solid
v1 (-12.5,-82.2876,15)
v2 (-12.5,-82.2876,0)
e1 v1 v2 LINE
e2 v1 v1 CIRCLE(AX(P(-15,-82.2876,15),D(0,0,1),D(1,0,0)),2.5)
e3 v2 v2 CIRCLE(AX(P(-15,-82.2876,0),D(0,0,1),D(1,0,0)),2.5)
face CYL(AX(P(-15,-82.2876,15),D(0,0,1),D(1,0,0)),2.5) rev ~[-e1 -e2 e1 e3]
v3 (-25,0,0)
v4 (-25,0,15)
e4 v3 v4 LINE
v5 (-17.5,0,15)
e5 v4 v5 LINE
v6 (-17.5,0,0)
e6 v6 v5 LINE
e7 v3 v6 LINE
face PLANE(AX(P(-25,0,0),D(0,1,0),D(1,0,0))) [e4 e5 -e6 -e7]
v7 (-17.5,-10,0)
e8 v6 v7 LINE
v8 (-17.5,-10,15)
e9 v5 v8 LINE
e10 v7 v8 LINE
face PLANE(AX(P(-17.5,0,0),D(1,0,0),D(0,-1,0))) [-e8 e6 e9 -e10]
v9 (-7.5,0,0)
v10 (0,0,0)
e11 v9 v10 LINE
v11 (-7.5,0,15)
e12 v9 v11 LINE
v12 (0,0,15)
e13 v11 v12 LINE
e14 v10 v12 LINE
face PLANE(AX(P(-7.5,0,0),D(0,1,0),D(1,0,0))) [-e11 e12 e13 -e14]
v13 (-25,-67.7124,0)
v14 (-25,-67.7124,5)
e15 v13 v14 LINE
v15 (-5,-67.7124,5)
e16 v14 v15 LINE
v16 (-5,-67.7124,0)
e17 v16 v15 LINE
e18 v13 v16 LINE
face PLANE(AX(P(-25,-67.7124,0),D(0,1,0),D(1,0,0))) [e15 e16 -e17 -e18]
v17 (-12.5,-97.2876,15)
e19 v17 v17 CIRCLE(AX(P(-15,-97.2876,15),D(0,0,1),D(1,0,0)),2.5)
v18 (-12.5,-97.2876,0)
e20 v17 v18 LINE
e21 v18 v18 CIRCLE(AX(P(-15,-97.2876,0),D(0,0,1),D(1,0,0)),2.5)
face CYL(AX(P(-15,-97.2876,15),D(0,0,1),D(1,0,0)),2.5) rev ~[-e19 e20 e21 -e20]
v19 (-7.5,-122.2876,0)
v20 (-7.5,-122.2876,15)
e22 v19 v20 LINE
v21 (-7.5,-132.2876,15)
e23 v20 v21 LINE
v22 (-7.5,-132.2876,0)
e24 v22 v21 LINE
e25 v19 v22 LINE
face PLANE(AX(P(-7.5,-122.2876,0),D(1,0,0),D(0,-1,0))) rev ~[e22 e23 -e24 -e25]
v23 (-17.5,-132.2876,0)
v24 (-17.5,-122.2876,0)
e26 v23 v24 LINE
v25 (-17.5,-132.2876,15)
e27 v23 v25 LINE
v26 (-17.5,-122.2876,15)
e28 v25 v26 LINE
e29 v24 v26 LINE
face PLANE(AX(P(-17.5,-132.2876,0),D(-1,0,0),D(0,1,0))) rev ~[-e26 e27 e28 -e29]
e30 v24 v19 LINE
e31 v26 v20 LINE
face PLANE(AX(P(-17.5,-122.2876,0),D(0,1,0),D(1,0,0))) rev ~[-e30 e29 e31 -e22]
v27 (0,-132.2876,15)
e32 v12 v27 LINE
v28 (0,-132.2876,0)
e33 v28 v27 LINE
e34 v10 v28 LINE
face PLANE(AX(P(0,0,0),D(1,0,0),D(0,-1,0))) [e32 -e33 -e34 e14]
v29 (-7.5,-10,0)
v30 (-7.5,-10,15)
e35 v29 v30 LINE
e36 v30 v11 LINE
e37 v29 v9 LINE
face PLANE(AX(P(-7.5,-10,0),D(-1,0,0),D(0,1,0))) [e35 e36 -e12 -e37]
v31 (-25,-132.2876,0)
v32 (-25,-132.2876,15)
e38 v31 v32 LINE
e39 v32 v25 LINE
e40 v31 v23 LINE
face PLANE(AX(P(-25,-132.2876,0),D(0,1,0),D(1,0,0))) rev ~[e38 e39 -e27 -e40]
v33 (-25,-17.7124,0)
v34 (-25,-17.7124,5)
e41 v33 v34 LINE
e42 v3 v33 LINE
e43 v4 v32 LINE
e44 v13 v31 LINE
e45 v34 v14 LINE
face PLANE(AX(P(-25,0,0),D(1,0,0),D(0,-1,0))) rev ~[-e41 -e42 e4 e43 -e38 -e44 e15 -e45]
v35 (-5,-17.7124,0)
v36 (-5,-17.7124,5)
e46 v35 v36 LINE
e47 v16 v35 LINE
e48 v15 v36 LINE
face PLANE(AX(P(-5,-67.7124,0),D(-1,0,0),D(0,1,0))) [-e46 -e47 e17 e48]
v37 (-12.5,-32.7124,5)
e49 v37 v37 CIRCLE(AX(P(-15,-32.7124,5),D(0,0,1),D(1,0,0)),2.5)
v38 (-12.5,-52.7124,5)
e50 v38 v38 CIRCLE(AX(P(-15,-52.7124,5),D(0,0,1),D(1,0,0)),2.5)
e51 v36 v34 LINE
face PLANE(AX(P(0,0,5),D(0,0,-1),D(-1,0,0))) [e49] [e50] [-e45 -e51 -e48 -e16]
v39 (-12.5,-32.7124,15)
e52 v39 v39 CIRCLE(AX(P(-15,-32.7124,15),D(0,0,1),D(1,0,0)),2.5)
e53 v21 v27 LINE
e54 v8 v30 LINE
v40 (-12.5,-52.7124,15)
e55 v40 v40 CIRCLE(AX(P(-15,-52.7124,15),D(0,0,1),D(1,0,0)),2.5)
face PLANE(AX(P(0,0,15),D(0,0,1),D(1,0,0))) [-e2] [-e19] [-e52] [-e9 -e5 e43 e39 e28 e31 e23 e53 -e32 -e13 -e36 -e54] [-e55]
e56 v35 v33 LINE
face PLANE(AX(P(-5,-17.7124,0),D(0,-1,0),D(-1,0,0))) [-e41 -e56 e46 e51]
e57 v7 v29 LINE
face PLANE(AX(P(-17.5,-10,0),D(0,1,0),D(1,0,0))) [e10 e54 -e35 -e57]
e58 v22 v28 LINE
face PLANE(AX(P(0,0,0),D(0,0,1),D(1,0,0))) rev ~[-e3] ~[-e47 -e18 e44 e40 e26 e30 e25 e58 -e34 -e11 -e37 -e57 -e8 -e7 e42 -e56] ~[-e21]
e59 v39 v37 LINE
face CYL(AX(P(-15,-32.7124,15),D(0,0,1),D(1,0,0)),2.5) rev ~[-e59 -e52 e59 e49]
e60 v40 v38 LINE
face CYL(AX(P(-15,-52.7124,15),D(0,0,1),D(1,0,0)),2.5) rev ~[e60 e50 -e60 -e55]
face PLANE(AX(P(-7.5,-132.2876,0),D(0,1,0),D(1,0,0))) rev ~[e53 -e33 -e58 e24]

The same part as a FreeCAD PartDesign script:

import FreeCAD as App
import Part
import Sketcher
Q = App.Units.Quantity

doc = App.newDocument("Part")
params = doc.addObject("Spreadsheet::Sheet", "Params")
for row, (alias, value) in enumerate([
    ("sketch1_width", "10 mm"),
    ("sketch1_width2", "7.5 mm"),
    ("pad1_length", "15 mm"),
    ("sketch2_diameter", "5 mm"),
    ("sketch3_diameter", "5 mm"),
    ("sketch4_width", "20 mm"),
    ("sketch4_height", "50 mm"),
    ("pocket3_length", "5 mm"),
], start=1):
    params.set(f"A{row}", alias)
    params.set(f"B{row}", "=" + value)
    params.setAlias(f"B{row}", alias)

body = doc.addObject("PartDesign::Body", "Body")

# Sketch on XY plane
sketch1 = body.newObject("Sketcher::SketchObject", "Sketch")
sketch1.AttachmentSupport = (doc.getObject("XY_Plane"), [""])
sketch1.MapMode = "FlatFace"
sketch1.addGeometry(Part.LineSegment(App.Vector(-17.5, 0, 0), App.Vector(-25, 0, 0)), False)
sketch1.addGeometry(Part.LineSegment(App.Vector(-25, 0, 0), App.Vector(-25, -132.2876, 0)), False)
sketch1.addGeometry(Part.LineSegment(App.Vector(-25, -132.2876, 0), App.Vector(-17.5, -132.2876, 0)), False)
sketch1.addGeometry(Part.LineSegment(App.Vector(-17.5, -132.2876, 0), App.Vector(-17.5, -122.2876, 0)), False)
sketch1.addGeometry(Part.LineSegment(App.Vector(-17.5, -122.2876, 0), App.Vector(-7.5, -122.2876, 0)), False)
sketch1.addGeometry(Part.LineSegment(App.Vector(-7.5, -122.2876, 0), App.Vector(-7.5, -132.2876, 0)), False)
sketch1.addGeometry(Part.LineSegment(App.Vector(-7.5, -132.2876, 0), App.Vector(0, -132.2876, 0)), False)
sketch1.addGeometry(Part.LineSegment(App.Vector(0, -132.2876, 0), App.Vector(0, 0, 0)), False)
sketch1.addGeometry(Part.LineSegment(App.Vector(0, 0, 0), App.Vector(-7.5, 0, 0)), False)
sketch1.addGeometry(Part.LineSegment(App.Vector(-7.5, 0, 0), App.Vector(-7.5, -10, 0)), False)
sketch1.addGeometry(Part.LineSegment(App.Vector(-7.5, -10, 0), App.Vector(-17.5, -10, 0)), False)
sketch1.addGeometry(Part.LineSegment(App.Vector(-17.5, -10, 0), App.Vector(-17.5, 0, 0)), False)
sketch1.addConstraint(Sketcher.Constraint("Coincident", 0, 2, 1, 1))
sketch1.addConstraint(Sketcher.Constraint("Coincident", 1, 2, 2, 1))
sketch1.addConstraint(Sketcher.Constraint("Coincident", 2, 2, 3, 1))
sketch1.addConstraint(Sketcher.Constraint("Coincident", 3, 2, 4, 1))
sketch1.addConstraint(Sketcher.Constraint("Coincident", 4, 2, 5, 1))
sketch1.addConstraint(Sketcher.Constraint("Coincident", 5, 2, 6, 1))
sketch1.addConstraint(Sketcher.Constraint("Coincident", 6, 2, 7, 1))
sketch1.addConstraint(Sketcher.Constraint("Coincident", 7, 2, 8, 1))
sketch1.addConstraint(Sketcher.Constraint("Coincident", 8, 2, 9, 1))
sketch1.addConstraint(Sketcher.Constraint("Coincident", 9, 2, 10, 1))
sketch1.addConstraint(Sketcher.Constraint("Coincident", 10, 2, 11, 1))
sketch1.addConstraint(Sketcher.Constraint("Coincident", 11, 2, 0, 1))
sketch1.addConstraint(Sketcher.Constraint("Horizontal", 0))
sketch1.addConstraint(Sketcher.Constraint("Vertical", 1))
sketch1.addConstraint(Sketcher.Constraint("Horizontal", 2))
sketch1.addConstraint(Sketcher.Constraint("Vertical", 3))
sketch1.addConstraint(Sketcher.Constraint("Horizontal", 4))
sketch1.addConstraint(Sketcher.Constraint("Vertical", 5))
sketch1.addConstraint(Sketcher.Constraint("Horizontal", 6))
sketch1.addConstraint(Sketcher.Constraint("Vertical", 7))
sketch1.addConstraint(Sketcher.Constraint("Horizontal", 8))
sketch1.addConstraint(Sketcher.Constraint("Vertical", 9))
sketch1.addConstraint(Sketcher.Constraint("Horizontal", 10))
sketch1.addConstraint(Sketcher.Constraint("Vertical", 11))
sketch1.addConstraint(Sketcher.Constraint("Coincident", 7, 2, -1, 1))
sketch1.addConstraint(Sketcher.Constraint("PointOnObject", 0, 2, -1))
sketch1.addConstraint(Sketcher.Constraint("Horizontal", 2, 2, 5, 2))
sketch1.addConstraint(Sketcher.Constraint("Vertical", 5, 2, 8, 2))
sketch1.addConstraint(Sketcher.Constraint("Vertical", 3, 2, 10, 2))
sketch1.addConstraint(Sketcher.Constraint("Equal", 2, 6))
sketch1.addConstraint(Sketcher.Constraint("Equal", 10, 3))
sketch1.addConstraint(Sketcher.Constraint("Equal", 5, 9))
sketch1.addConstraint(Sketcher.Constraint("DistanceX", 4, 1, 4, 2, Q("10 mm")))
sketch1.addConstraint(Sketcher.Constraint("DistanceX", 0, 2, 0, 1, Q("7.5 mm")))
sketch1.addConstraint(Sketcher.Constraint("DistanceY", 1, 2, 1, 1, Q("132.2876 mm")))
sketch1.setExpression("Constraints[32]", "Params.sketch1_width")
sketch1.setExpression("Constraints[33]", "Params.sketch1_width2")
pad1 = body.newObject("PartDesign::Pad", "Pad")
pad1.Profile = sketch1
pad1.setExpression("Length", "Params.pad1_length")

# Sketch on XY plane
sketch2 = body.newObject("Sketcher::SketchObject", "Sketch001")
sketch2.AttachmentSupport = (doc.getObject("XY_Plane"), [""])
sketch2.MapMode = "FlatFace"
sketch2.AttachmentOffset = App.Placement(App.Vector(0, 0, 15), App.Rotation())
sketch2.addGeometry(Part.Circle(App.Vector(-15, -32.7124, 0), App.Vector(0, 0, 1), 2.5), False)
sketch2.addGeometry(Part.Circle(App.Vector(-15, -52.7124, 0), App.Vector(0, 0, 1), 2.5), False)
sketch2.addConstraint(Sketcher.Constraint("Equal", 0, 1))
sketch2.addConstraint(Sketcher.Constraint("Vertical", 0, 3, 1, 3))
sketch2.addConstraint(Sketcher.Constraint("Diameter", 0, Q("5 mm")))
sketch2.addConstraint(Sketcher.Constraint("DistanceX", 0, 3, -1, 1, Q("15 mm")))
sketch2.addConstraint(Sketcher.Constraint("DistanceY", 1, 3, 0, 3, Q("20 mm")))
sketch2.addConstraint(Sketcher.Constraint("DistanceY", 0, 3, -1, 1, Q("32.7124 mm")))
sketch2.setExpression("Constraints[2]", "Params.sketch2_diameter")
pocket1 = body.newObject("PartDesign::Pocket", "Pocket")
pocket1.Profile = sketch2
pocket1.Type = "ThroughAll"

# Sketch on XY plane
sketch3 = body.newObject("Sketcher::SketchObject", "Sketch002")
sketch3.AttachmentSupport = (doc.getObject("XY_Plane"), [""])
sketch3.MapMode = "FlatFace"
sketch3.AttachmentOffset = App.Placement(App.Vector(0, 0, 15), App.Rotation())
sketch3.addGeometry(Part.Circle(App.Vector(-15, -82.2876, 0), App.Vector(0, 0, 1), 2.5), False)
sketch3.addGeometry(Part.Circle(App.Vector(-15, -97.2876, 0), App.Vector(0, 0, 1), 2.5), False)
sketch3.addConstraint(Sketcher.Constraint("Equal", 0, 1))
sketch3.addConstraint(Sketcher.Constraint("Vertical", 0, 3, 1, 3))
sketch3.addConstraint(Sketcher.Constraint("Diameter", 0, Q("5 mm")))
sketch3.addConstraint(Sketcher.Constraint("DistanceX", 0, 3, -1, 1, Q("15 mm")))
sketch3.addConstraint(Sketcher.Constraint("DistanceY", 1, 3, 0, 3, Q("15 mm")))
sketch3.addConstraint(Sketcher.Constraint("DistanceY", 0, 3, -1, 1, Q("82.2876 mm")))
sketch3.setExpression("Constraints[2]", "Params.sketch3_diameter")
pocket2 = body.newObject("PartDesign::Pocket", "Pocket001")
pocket2.Profile = sketch3
pocket2.Type = "ThroughAll"

# Sketch on XY plane
sketch4 = body.newObject("Sketcher::SketchObject", "Sketch003")
sketch4.AttachmentSupport = (doc.getObject("XY_Plane"), [""])
sketch4.MapMode = "FlatFace"
sketch4.addGeometry(Part.LineSegment(App.Vector(-25, -17.7124, 0), App.Vector(-5, -17.7124, 0)), False)
sketch4.addGeometry(Part.LineSegment(App.Vector(-5, -17.7124, 0), App.Vector(-5, -67.7124, 0)), False)
sketch4.addGeometry(Part.LineSegment(App.Vector(-5, -67.7124, 0), App.Vector(-25, -67.7124, 0)), False)
sketch4.addGeometry(Part.LineSegment(App.Vector(-25, -67.7124, 0), App.Vector(-25, -17.7124, 0)), False)
sketch4.addConstraint(Sketcher.Constraint("Coincident", 0, 2, 1, 1))
sketch4.addConstraint(Sketcher.Constraint("Coincident", 1, 2, 2, 1))
sketch4.addConstraint(Sketcher.Constraint("Coincident", 2, 2, 3, 1))
sketch4.addConstraint(Sketcher.Constraint("Coincident", 3, 2, 0, 1))
sketch4.addConstraint(Sketcher.Constraint("Horizontal", 0))
sketch4.addConstraint(Sketcher.Constraint("Vertical", 1))
sketch4.addConstraint(Sketcher.Constraint("Horizontal", 2))
sketch4.addConstraint(Sketcher.Constraint("Vertical", 3))
sketch4.addConstraint(Sketcher.Constraint("DistanceX", 0, 1, 0, 2, Q("20 mm")))
sketch4.addConstraint(Sketcher.Constraint("DistanceY", 1, 2, 1, 1, Q("50 mm")))
sketch4.addConstraint(Sketcher.Constraint("DistanceX", 0, 2, -1, 1, Q("5 mm")))
sketch4.addConstraint(Sketcher.Constraint("DistanceY", 0, 2, -1, 1, Q("17.7124 mm")))
sketch4.setExpression("Constraints[8]", "Params.sketch4_width")
sketch4.setExpression("Constraints[9]", "Params.sketch4_height")
pocket3 = body.newObject("PartDesign::Pocket", "Pocket002")
pocket3.Profile = sketch4
pocket3.setExpression("Length", "Params.pocket3_length")
pocket3.Reversed = True

doc.recompute()
